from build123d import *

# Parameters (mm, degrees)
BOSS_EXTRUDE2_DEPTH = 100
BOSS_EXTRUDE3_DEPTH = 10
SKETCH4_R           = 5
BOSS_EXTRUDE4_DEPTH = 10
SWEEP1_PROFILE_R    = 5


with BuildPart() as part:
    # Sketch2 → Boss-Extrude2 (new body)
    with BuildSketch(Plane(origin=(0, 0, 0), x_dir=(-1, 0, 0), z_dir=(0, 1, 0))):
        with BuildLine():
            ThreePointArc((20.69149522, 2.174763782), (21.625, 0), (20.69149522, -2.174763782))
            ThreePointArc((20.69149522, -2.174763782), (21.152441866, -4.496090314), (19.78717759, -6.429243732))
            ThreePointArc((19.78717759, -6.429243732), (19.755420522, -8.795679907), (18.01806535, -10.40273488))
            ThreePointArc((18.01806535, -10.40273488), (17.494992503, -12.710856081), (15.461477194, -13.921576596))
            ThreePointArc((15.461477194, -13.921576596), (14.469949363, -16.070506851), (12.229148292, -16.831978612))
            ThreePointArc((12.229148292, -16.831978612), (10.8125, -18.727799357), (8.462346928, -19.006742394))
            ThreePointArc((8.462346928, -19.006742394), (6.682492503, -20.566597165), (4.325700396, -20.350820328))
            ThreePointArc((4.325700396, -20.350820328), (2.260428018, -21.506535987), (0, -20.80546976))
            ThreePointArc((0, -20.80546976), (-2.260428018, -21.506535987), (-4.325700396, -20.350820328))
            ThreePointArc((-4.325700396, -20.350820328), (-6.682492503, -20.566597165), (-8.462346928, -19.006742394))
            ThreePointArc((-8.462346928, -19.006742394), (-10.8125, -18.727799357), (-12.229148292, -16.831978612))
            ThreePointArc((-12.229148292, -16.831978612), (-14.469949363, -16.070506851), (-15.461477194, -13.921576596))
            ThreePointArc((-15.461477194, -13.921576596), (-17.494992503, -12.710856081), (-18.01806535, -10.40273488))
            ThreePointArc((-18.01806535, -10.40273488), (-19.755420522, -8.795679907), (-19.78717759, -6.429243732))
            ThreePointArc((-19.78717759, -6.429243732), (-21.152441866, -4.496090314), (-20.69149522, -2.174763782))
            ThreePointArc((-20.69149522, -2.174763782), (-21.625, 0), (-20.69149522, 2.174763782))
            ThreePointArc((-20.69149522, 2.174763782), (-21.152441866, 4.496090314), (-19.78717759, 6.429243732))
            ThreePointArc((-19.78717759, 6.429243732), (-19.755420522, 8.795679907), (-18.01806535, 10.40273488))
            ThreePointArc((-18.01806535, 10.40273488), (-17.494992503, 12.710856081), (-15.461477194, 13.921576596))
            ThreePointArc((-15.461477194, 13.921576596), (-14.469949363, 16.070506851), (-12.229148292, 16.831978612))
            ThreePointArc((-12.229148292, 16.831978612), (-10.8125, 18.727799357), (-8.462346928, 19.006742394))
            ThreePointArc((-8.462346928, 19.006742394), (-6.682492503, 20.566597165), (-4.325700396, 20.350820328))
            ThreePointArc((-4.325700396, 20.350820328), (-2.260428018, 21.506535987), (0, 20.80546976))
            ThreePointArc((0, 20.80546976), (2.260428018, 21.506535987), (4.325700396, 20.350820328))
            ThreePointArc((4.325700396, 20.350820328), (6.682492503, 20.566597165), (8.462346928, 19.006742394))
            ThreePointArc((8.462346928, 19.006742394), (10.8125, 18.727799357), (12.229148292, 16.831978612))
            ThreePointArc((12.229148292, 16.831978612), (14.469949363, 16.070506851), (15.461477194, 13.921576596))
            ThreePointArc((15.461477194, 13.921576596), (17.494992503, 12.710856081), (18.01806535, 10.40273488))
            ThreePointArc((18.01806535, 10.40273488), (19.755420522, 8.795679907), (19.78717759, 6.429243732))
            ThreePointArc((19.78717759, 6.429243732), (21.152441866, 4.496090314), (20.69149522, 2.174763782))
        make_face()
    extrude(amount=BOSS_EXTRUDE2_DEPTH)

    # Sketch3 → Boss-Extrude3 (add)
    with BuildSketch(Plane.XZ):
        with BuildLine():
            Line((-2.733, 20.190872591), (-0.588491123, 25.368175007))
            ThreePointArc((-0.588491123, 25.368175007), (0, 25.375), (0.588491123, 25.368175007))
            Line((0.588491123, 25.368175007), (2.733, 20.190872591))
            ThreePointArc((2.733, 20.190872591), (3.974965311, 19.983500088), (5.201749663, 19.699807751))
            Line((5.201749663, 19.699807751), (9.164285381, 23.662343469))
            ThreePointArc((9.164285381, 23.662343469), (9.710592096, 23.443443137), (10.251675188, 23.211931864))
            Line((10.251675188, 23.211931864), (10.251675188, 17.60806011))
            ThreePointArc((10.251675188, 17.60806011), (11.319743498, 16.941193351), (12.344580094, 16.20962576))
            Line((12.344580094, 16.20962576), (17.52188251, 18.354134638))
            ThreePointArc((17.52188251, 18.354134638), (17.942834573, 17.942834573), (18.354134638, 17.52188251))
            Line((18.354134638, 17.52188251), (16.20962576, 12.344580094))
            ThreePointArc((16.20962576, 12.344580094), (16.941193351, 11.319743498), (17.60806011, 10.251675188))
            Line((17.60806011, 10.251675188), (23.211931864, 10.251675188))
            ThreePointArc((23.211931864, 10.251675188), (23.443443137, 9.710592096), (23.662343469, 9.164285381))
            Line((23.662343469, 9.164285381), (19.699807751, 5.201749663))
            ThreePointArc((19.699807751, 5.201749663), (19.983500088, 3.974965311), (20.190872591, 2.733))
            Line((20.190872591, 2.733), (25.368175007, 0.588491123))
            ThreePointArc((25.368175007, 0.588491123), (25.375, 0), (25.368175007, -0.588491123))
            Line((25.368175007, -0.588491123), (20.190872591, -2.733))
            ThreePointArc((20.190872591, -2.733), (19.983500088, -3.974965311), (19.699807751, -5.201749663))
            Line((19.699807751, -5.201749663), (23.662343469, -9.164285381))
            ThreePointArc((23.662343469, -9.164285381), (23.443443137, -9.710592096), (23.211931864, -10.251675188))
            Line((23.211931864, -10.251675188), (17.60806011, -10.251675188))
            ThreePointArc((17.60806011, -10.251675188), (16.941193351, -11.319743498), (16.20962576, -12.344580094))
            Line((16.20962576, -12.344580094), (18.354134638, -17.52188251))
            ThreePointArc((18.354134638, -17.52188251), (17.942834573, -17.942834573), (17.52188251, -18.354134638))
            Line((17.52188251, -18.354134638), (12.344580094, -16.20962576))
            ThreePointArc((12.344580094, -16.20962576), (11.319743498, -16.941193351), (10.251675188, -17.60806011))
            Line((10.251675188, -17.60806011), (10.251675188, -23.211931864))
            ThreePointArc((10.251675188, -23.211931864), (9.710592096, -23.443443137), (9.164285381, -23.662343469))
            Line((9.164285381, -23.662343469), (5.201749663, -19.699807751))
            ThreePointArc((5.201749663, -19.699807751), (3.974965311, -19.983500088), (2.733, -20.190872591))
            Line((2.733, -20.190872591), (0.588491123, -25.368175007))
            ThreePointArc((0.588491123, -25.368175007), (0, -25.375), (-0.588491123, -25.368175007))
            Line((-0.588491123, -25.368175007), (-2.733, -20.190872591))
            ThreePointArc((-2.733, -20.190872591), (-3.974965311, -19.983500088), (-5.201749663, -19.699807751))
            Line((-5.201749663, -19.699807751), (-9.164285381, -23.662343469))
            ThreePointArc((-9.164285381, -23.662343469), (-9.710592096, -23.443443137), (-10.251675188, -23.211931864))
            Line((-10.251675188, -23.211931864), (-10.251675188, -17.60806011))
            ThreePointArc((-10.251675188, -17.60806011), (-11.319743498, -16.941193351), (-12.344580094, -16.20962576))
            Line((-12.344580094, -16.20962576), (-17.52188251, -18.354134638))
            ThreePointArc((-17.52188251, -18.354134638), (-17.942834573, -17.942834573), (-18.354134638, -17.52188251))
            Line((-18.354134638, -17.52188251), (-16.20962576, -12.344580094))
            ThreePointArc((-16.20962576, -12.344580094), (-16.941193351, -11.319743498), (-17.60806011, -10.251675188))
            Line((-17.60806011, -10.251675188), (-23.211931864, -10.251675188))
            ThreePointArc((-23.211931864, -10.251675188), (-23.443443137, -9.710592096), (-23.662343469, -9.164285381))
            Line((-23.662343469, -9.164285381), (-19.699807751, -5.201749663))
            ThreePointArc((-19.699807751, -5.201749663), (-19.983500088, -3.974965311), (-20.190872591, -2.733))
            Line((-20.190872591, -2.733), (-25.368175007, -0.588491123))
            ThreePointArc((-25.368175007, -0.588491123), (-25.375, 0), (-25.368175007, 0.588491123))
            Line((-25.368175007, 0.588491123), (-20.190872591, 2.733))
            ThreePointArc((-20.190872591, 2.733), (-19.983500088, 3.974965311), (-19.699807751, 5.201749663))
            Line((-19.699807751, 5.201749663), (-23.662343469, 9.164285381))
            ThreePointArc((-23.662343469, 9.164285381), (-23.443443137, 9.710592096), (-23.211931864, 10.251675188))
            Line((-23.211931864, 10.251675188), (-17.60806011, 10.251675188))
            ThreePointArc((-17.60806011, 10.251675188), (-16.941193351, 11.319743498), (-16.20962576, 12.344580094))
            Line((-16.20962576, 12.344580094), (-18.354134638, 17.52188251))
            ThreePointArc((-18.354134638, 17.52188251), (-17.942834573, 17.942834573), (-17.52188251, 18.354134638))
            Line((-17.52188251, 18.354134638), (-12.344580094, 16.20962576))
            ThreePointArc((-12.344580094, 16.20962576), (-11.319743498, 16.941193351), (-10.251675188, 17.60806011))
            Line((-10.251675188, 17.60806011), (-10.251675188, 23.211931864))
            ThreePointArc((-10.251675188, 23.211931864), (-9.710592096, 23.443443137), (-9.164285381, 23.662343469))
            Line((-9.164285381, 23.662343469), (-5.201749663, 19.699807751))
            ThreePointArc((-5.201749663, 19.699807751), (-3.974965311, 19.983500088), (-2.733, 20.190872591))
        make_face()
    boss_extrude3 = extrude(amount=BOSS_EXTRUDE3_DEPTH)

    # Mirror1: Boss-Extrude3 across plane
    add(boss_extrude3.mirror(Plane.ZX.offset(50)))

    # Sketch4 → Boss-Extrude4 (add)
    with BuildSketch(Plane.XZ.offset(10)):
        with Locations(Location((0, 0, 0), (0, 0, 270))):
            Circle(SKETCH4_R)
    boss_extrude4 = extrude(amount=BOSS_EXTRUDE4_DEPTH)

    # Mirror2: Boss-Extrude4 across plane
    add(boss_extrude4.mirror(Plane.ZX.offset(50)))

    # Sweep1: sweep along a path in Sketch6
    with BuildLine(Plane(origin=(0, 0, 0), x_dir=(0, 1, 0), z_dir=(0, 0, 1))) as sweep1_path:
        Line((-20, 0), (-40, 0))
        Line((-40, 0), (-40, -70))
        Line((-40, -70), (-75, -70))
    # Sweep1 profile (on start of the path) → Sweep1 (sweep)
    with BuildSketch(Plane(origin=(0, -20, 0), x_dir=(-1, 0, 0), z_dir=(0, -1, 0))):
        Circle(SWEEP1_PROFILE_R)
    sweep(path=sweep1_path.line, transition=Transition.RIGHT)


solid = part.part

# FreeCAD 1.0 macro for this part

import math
import FreeCAD as App
import Part
import Sketcher
from FreeCAD import Vector
Q = App.Units.Quantity

doc = App.newDocument("Part")
params = doc.addObject("Spreadsheet::Sheet", "Params")
for row, (alias, value) in enumerate([
    ("sketch1_radius", "3 mm"),
    ("pad1_length", "100 mm"),
    ("pad2_length", "10 mm"),
    ("sketch3_diameter", "10 mm"),
    ("pad3_length", "10 mm"),
    ("sketch4_diameter", "10 mm"),
    ("sketch5_width", "70 mm"),
    ("sketch5_height", "20 mm"),
    ("sketch5_height2", "35 mm"),
], start=1):
    params.set(f"A{row}", alias)
    params.set(f"B{row}", "=" + value)
    params.setAlias(f"B{row}", alias)

body = doc.addObject("PartDesign::Body", "Body")

# Sketch on XZ plane
sketch1 = body.newObject("Sketcher::SketchObject", "Sketch")
sketch1.AttachmentSupport = (doc.getObject("XZ_Plane"), [""])
sketch1.MapMode = "FlatFace"
sketch1.addGeometry(Part.ArcOfCircle(Part.Circle(Vector(-18.6, 0, 0), Vector(0, 0, 1), 3), math.radians(134), math.radians(226)), False)
sketch1.addGeometry(Part.ArcOfCircle(Part.Circle(Vector(-18.2, 3.9, 0), Vector(0, 0, 1), 3), math.radians(122), math.radians(214)), False)
sketch1.addGeometry(Part.ArcOfCircle(Part.Circle(Vector(-17, 7.6, 0), Vector(0, 0, 1), 3), math.radians(110), math.radians(202)), False)
sketch1.addGeometry(Part.ArcOfCircle(Part.Circle(Vector(-15.1, 10.9, 0), Vector(0, 0, 1), 3), math.radians(98), math.radians(190)), False)
sketch1.addGeometry(Part.ArcOfCircle(Part.Circle(Vector(-12.5, 13.8, 0), Vector(0, 0, 1), 3), math.radians(86), math.radians(178)), False)
sketch1.addGeometry(Part.ArcOfCircle(Part.Circle(Vector(-9.3, 16.1, 0), Vector(0, 0, 1), 3), math.radians(74), math.radians(166)), False)
sketch1.addGeometry(Part.ArcOfCircle(Part.Circle(Vector(-5.8, 17.7, 0), Vector(0, 0, 1), 3), math.radians(62), math.radians(154)), False)
sketch1.addGeometry(Part.ArcOfCircle(Part.Circle(Vector(-1.9, 18.5, 0), Vector(0, 0, 1), 3), math.radians(50), math.radians(142)), False)
sketch1.addGeometry(Part.ArcOfCircle(Part.Circle(Vector(1.9, 18.5, 0), Vector(0, 0, 1), 3), math.radians(38), math.radians(130)), False)
sketch1.addGeometry(Part.ArcOfCircle(Part.Circle(Vector(5.8, 17.7, 0), Vector(0, 0, 1), 3), math.radians(26), math.radians(118)), False)
sketch1.addGeometry(Part.ArcOfCircle(Part.Circle(Vector(9.3, 16.1, 0), Vector(0, 0, 1), 3), math.radians(14), math.radians(106)), False)
sketch1.addGeometry(Part.ArcOfCircle(Part.Circle(Vector(12.5, 13.8, 0), Vector(0, 0, 1), 3), math.radians(2), math.radians(94)), False)
sketch1.addGeometry(Part.ArcOfCircle(Part.Circle(Vector(15.1, 10.9, 0), Vector(0, 0, 1), 3), math.radians(-10), math.radians(82)), False)
sketch1.addGeometry(Part.ArcOfCircle(Part.Circle(Vector(17, 7.6, 0), Vector(0, 0, 1), 3), math.radians(-22), math.radians(70)), False)
sketch1.addGeometry(Part.ArcOfCircle(Part.Circle(Vector(18.2, 3.9, 0), Vector(0, 0, 1), 3), math.radians(-34), math.radians(58)), False)
sketch1.addGeometry(Part.ArcOfCircle(Part.Circle(Vector(18.6, 0, 0), Vector(0, 0, 1), 3), math.radians(-46), math.radians(46)), False)
sketch1.addGeometry(Part.ArcOfCircle(Part.Circle(Vector(18.2, -3.9, 0), Vector(0, 0, 1), 3), math.radians(-58), math.radians(34)), False)
sketch1.addGeometry(Part.ArcOfCircle(Part.Circle(Vector(17, -7.6, 0), Vector(0, 0, 1), 3), math.radians(-70), math.radians(22)), False)
sketch1.addGeometry(Part.ArcOfCircle(Part.Circle(Vector(15.1, -10.9, 0), Vector(0, 0, 1), 3), math.radians(-82), math.radians(10)), False)
sketch1.addGeometry(Part.ArcOfCircle(Part.Circle(Vector(12.5, -13.8, 0), Vector(0, 0, 1), 3), math.radians(-94), math.radians(-2)), False)
sketch1.addGeometry(Part.ArcOfCircle(Part.Circle(Vector(9.3, -16.1, 0), Vector(0, 0, 1), 3), math.radians(-106), math.radians(-14)), False)
sketch1.addGeometry(Part.ArcOfCircle(Part.Circle(Vector(5.8, -17.7, 0), Vector(0, 0, 1), 3), math.radians(-118), math.radians(-26)), False)
sketch1.addGeometry(Part.ArcOfCircle(Part.Circle(Vector(1.9, -18.5, 0), Vector(0, 0, 1), 3), math.radians(-130), math.radians(-38)), False)
sketch1.addGeometry(Part.ArcOfCircle(Part.Circle(Vector(-1.9, -18.5, 0), Vector(0, 0, 1), 3), math.radians(-142), math.radians(-50)), False)
sketch1.addGeometry(Part.ArcOfCircle(Part.Circle(Vector(-5.8, -17.7, 0), Vector(0, 0, 1), 3), math.radians(-154), math.radians(-62)), False)
sketch1.addGeometry(Part.ArcOfCircle(Part.Circle(Vector(-9.3, -16.1, 0), Vector(0, 0, 1), 3), math.radians(-166), math.radians(-74)), False)
sketch1.addGeometry(Part.ArcOfCircle(Part.Circle(Vector(-12.5, -13.8, 0), Vector(0, 0, 1), 3), math.radians(-178), math.radians(-86)), False)
sketch1.addGeometry(Part.ArcOfCircle(Part.Circle(Vector(-15.1, -10.9, 0), Vector(0, 0, 1), 3), math.radians(170), math.radians(262)), False)
sketch1.addGeometry(Part.ArcOfCircle(Part.Circle(Vector(-17, -7.6, 0), Vector(0, 0, 1), 3), math.radians(158), math.radians(250)), False)
sketch1.addGeometry(Part.ArcOfCircle(Part.Circle(Vector(-18.2, -3.9, 0), Vector(0, 0, 1), 3), math.radians(146), math.radians(238)), False)
sketch1.addConstraint(Sketcher.Constraint("Coincident", 0, 1, 1, 2))
sketch1.addConstraint(Sketcher.Constraint("Coincident", 1, 1, 2, 2))
sketch1.addConstraint(Sketcher.Constraint("Coincident", 2, 1, 3, 2))
sketch1.addConstraint(Sketcher.Constraint("Coincident", 3, 1, 4, 2))
sketch1.addConstraint(Sketcher.Constraint("Coincident", 4, 1, 5, 2))
sketch1.addConstraint(Sketcher.Constraint("Coincident", 5, 1, 6, 2))
sketch1.addConstraint(Sketcher.Constraint("Coincident", 6, 1, 7, 2))
sketch1.addConstraint(Sketcher.Constraint("Coincident", 7, 1, 8, 2))
sketch1.addConstraint(Sketcher.Constraint("Coincident", 8, 1, 9, 2))
sketch1.addConstraint(Sketcher.Constraint("Coincident", 9, 1, 10, 2))
sketch1.addConstraint(Sketcher.Constraint("Coincident", 10, 1, 11, 2))
sketch1.addConstraint(Sketcher.Constraint("Coincident", 11, 1, 12, 2))
sketch1.addConstraint(Sketcher.Constraint("Coincident", 12, 1, 13, 2))
sketch1.addConstraint(Sketcher.Constraint("Coincident", 13, 1, 14, 2))
sketch1.addConstraint(Sketcher.Constraint("Coincident", 14, 1, 15, 2))
sketch1.addConstraint(Sketcher.Constraint("Coincident", 15, 1, 16, 2))
sketch1.addConstraint(Sketcher.Constraint("Coincident", 16, 1, 17, 2))
sketch1.addConstraint(Sketcher.Constraint("Coincident", 17, 1, 18, 2))
sketch1.addConstraint(Sketcher.Constraint("Coincident", 18, 1, 19, 2))
sketch1.addConstraint(Sketcher.Constraint("Coincident", 19, 1, 20, 2))
sketch1.addConstraint(Sketcher.Constraint("Coincident", 20, 1, 21, 2))
sketch1.addConstraint(Sketcher.Constraint("Coincident", 21, 1, 22, 2))
sketch1.addConstraint(Sketcher.Constraint("Coincident", 22, 1, 23, 2))
sketch1.addConstraint(Sketcher.Constraint("Coincident", 23, 1, 24, 2))
sketch1.addConstraint(Sketcher.Constraint("Coincident", 24, 1, 25, 2))
sketch1.addConstraint(Sketcher.Constraint("Coincident", 25, 1, 26, 2))
sketch1.addConstraint(Sketcher.Constraint("Coincident", 26, 1, 27, 2))
sketch1.addConstraint(Sketcher.Constraint("Coincident", 27, 1, 28, 2))
sketch1.addConstraint(Sketcher.Constraint("Coincident", 28, 1, 29, 2))
sketch1.addConstraint(Sketcher.Constraint("Coincident", 29, 1, 0, 2))
sketch1.addConstraint(Sketcher.Constraint("Equal", 0, 1))
sketch1.addConstraint(Sketcher.Constraint("Equal", 1, 2))
sketch1.addConstraint(Sketcher.Constraint("Equal", 2, 3))
sketch1.addConstraint(Sketcher.Constraint("Equal", 3, 4))
sketch1.addConstraint(Sketcher.Constraint("Equal", 4, 5))
sketch1.addConstraint(Sketcher.Constraint("Equal", 5, 6))
sketch1.addConstraint(Sketcher.Constraint("Equal", 6, 7))
sketch1.addConstraint(Sketcher.Constraint("Equal", 7, 8))
sketch1.addConstraint(Sketcher.Constraint("Equal", 8, 9))
sketch1.addConstraint(Sketcher.Constraint("Equal", 9, 10))
sketch1.addConstraint(Sketcher.Constraint("Equal", 10, 11))
sketch1.addConstraint(Sketcher.Constraint("Equal", 11, 12))
sketch1.addConstraint(Sketcher.Constraint("Equal", 12, 13))
sketch1.addConstraint(Sketcher.Constraint("Equal", 13, 14))
sketch1.addConstraint(Sketcher.Constraint("Equal", 14, 15))
sketch1.addConstraint(Sketcher.Constraint("Equal", 15, 16))
sketch1.addConstraint(Sketcher.Constraint("Equal", 16, 17))
sketch1.addConstraint(Sketcher.Constraint("Equal", 17, 18))
sketch1.addConstraint(Sketcher.Constraint("Equal", 18, 19))
sketch1.addConstraint(Sketcher.Constraint("Equal", 19, 20))
sketch1.addConstraint(Sketcher.Constraint("Equal", 20, 21))
sketch1.addConstraint(Sketcher.Constraint("Equal", 21, 22))
sketch1.addConstraint(Sketcher.Constraint("Equal", 22, 23))
sketch1.addConstraint(Sketcher.Constraint("Equal", 23, 24))
sketch1.addConstraint(Sketcher.Constraint("Equal", 24, 25))
sketch1.addConstraint(Sketcher.Constraint("Equal", 25, 26))
sketch1.addConstraint(Sketcher.Constraint("Equal", 26, 27))
sketch1.addConstraint(Sketcher.Constraint("Equal", 27, 28))
sketch1.addConstraint(Sketcher.Constraint("Equal", 28, 29))
sketch1.addConstraint(Sketcher.Constraint("Symmetric", 0, 3, 15, 3, -1, 1))
sketch1.addConstraint(Sketcher.Constraint("Symmetric", 1, 3, 16, 3, -1, 1))
sketch1.addConstraint(Sketcher.Constraint("Symmetric", 2, 3, 17, 3, -1, 1))
sketch1.addConstraint(Sketcher.Constraint("Symmetric", 3, 3, 18, 3, -1, 1))
sketch1.addConstraint(Sketcher.Constraint("Symmetric", 4, 3, 19, 3, -1, 1))
sketch1.addConstraint(Sketcher.Constraint("Symmetric", 5, 3, 20, 3, -1, 1))
sketch1.addConstraint(Sketcher.Constraint("Symmetric", 6, 3, 21, 3, -1, 1))
sketch1.addConstraint(Sketcher.Constraint("Symmetric", 7, 3, 22, 3, -1, 1))
sketch1.addConstraint(Sketcher.Constraint("Symmetric", 8, 3, 23, 3, -1, 1))
sketch1.addConstraint(Sketcher.Constraint("Symmetric", 9, 3, 24, 3, -1, 1))
sketch1.addConstraint(Sketcher.Constraint("Symmetric", 10, 3, 25, 3, -1, 1))
sketch1.addConstraint(Sketcher.Constraint("Symmetric", 11, 3, 26, 3, -1, 1))
sketch1.addConstraint(Sketcher.Constraint("Symmetric", 12, 3, 27, 3, -1, 1))
sketch1.addConstraint(Sketcher.Constraint("Symmetric", 13, 3, 28, 3, -1, 1))
sketch1.addConstraint(Sketcher.Constraint("Symmetric", 14, 3, 29, 3, -1, 1))
sketch1.addConstraint(Sketcher.Constraint("Symmetric", 7, 3, 8, 3, -2))
sketch1.addConstraint(Sketcher.Constraint("Symmetric", 6, 3, 9, 3, -2))
sketch1.addConstraint(Sketcher.Constraint("Symmetric", 5, 3, 10, 3, -2))
sketch1.addConstraint(Sketcher.Constraint("Symmetric", 4, 3, 11, 3, -2))
sketch1.addConstraint(Sketcher.Constraint("Symmetric", 3, 3, 12, 3, -2))
sketch1.addConstraint(Sketcher.Constraint("Symmetric", 2, 3, 13, 3, -2))
sketch1.addConstraint(Sketcher.Constraint("Symmetric", 1, 3, 14, 3, -2))
sketch1.addConstraint(Sketcher.Constraint("PointOnObject", 0, 3, -1))
sketch1.addConstraint(Sketcher.Constraint("Radius", 0, Q("3 mm")))
sketch1.addConstraint(Sketcher.Constraint("DistanceX", 0, 3, -1, 1, Q("18.625 mm")))
sketch1.addConstraint(Sketcher.Constraint("DistanceX", 1, 3, -1, 1, Q("18.217999 mm")))
sketch1.addConstraint(Sketcher.Constraint("DistanceX", 4, 3, 9, 3, Q("18.217999 mm")))
sketch1.addConstraint(Sketcher.Constraint("DistanceX", 5, 3, 10, 3, Q("18.625 mm")))
sketch1.addConstraint(Sketcher.Constraint("DistanceY", -1, 1, 3, 3, Q("10.9475 mm")))
sketch1.addConstraint(Sketcher.Constraint("DistanceX", 6, 1, -1, 1, Q("4.3257 mm")))
sketch1.addConstraint(Sketcher.Constraint("DistanceX", 3, 3, 6, 3, Q("9.3125 mm")))
sketch1.addConstraint(Sketcher.Constraint("DistanceX", 6, 3, 7, 3, Q("3.808599 mm")))
sketch1.addConstraint(Sketcher.Constraint("DistanceY", 2, 3, 7, 3, Q("10.9475 mm")))
sketch1.addConstraint(Sketcher.Constraint("DistanceX", 4, 1, 5, 1, Q("3.766801 mm")))
sketch1.addConstraint(Sketcher.Constraint("DistanceY", 8, 3, 7, 1, Q("2.282499 mm")))
sketch1.addConstraint(Sketcher.Constraint("DistanceY", -1, 1, 2, 3, Q("7.57547 mm")))
sketch1.addConstraint(Sketcher.Constraint("DistanceX", 4, 1, -1, 1, Q("12.229148 mm")))
sketch1.addConstraint(Sketcher.Constraint("DistanceX", 2, 3, 7, 3, Q("15.067942 mm")))
sketch1.addConstraint(Sketcher.Constraint("DistanceY", 16, 3, 14, 3, Q("7.74471 mm")))
sketch1.setExpression("Constraints[82]", "Params.sketch1_radius")
pad1 = body.newObject("PartDesign::Pad", "Pad")
pad1.Profile = sketch1
pad1.setExpression("Length", "Params.pad1_length")
pad1.Reversed = True

# Sketch on XZ plane
sketch2 = body.newObject("Sketcher::SketchObject", "Sketch001")
sketch2.AttachmentSupport = (doc.getObject("XZ_Plane"), [""])
sketch2.MapMode = "FlatFace"
sketch2.addGeometry(Part.LineSegment(Vector(-0.588491, 25.368175, 0), Vector(-2.733, 20.190873, 0)), False)
sketch2.addGeometry(Part.ArcOfCircle(Part.Circle(Vector(0, 0, 0), Vector(0, 0, 1), 20.375), math.radians(97.708602), math.radians(104.791398)), False)
sketch2.addGeometry(Part.LineSegment(Vector(-5.20175, 19.699808, 0), Vector(-9.164285, 23.662343, 0)), False)
sketch2.addGeometry(Part.ArcOfCircle(Part.Circle(Vector(0.000001, -0.000002, 0), Vector(0, 0, 1), 25.375002), math.radians(111.17109), math.radians(113.828909)), False)
sketch2.addGeometry(Part.LineSegment(Vector(-10.251675, 23.211932, 0), Vector(-10.251675, 17.60806, 0)), False)
sketch2.addGeometry(Part.ArcOfCircle(Part.Circle(Vector(0, 0, 0), Vector(0, 0, 1), 20.375), math.radians(120.208602), math.radians(127.291398)), False)
sketch2.addGeometry(Part.LineSegment(Vector(-12.34458, 16.209626, 0), Vector(-17.521883, 18.354135, 0)), False)
sketch2.addGeometry(Part.ArcOfCircle(Part.Circle(Vector(-0.000001, 0.000001, 0), Vector(0, 0, 1), 25.374998), math.radians(133.67109), math.radians(136.32891)), False)
sketch2.addGeometry(Part.LineSegment(Vector(-18.354135, 17.521883, 0), Vector(-16.209626, 12.34458, 0)), False)
sketch2.addGeometry(Part.ArcOfCircle(Part.Circle(Vector(0, 0, 0), Vector(0, 0, 1), 20.375), math.radians(142.708602), math.radians(149.791398)), False)
sketch2.addGeometry(Part.LineSegment(Vector(-17.60806, 10.251675, 0), Vector(-23.211932, 10.251675, 0)), False)
sketch2.addGeometry(Part.ArcOfCircle(Part.Circle(Vector(0.000002, -0.000001, 0), Vector(0, 0, 1), 25.375002), math.radians(156.171091), math.radians(158.82891)), False)
sketch2.addGeometry(Part.LineSegment(Vector(-23.662343, 9.164285, 0), Vector(-19.699808, 5.20175, 0)), False)
sketch2.addGeometry(Part.ArcOfCircle(Part.Circle(Vector(0, 0, 0), Vector(0, 0, 1), 20.375), math.radians(165.208602), math.radians(172.291398)), False)
sketch2.addGeometry(Part.LineSegment(Vector(-20.190873, 2.733, 0), Vector(-25.368175, 0.588491, 0)), False)
sketch2.addGeometry(Part.ArcOfCircle(Part.Circle(Vector(-0.000001, 0, 0), Vector(0, 0, 1), 25.374999), math.radians(178.67109), math.radians(181.32891)), False)
sketch2.addGeometry(Part.LineSegment(Vector(-25.368175, -0.588491, 0), Vector(-20.190873, -2.733, 0)), False)
sketch2.addGeometry(Part.ArcOfCircle(Part.Circle(Vector(0, 0, 0), Vector(0, 0, 1), 20.375), math.radians(-172.291398), math.radians(-165.208602)), False)
sketch2.addGeometry(Part.LineSegment(Vector(-19.699808, -5.20175, 0), Vector(-23.662343, -9.164285, 0)), False)
sketch2.addGeometry(Part.ArcOfCircle(Part.Circle(Vector(0.000002, 0.000001, 0), Vector(0, 0, 1), 25.375002), math.radians(-158.82891), math.radians(-156.171091)), False)
sketch2.addGeometry(Part.LineSegment(Vector(-23.211932, -10.251675, 0), Vector(-17.60806, -10.251675, 0)), False)
sketch2.addGeometry(Part.ArcOfCircle(Part.Circle(Vector(0, 0, 0), Vector(0, 0, 1), 20.375), math.radians(-149.791398), math.radians(-142.708602)), False)
sketch2.addGeometry(Part.LineSegment(Vector(-16.209626, -12.34458, 0), Vector(-18.354135, -17.521883, 0)), False)
sketch2.addGeometry(Part.ArcOfCircle(Part.Circle(Vector(-0.000001, -0.000001, 0), Vector(0, 0, 1), 25.374998), math.radians(-136.32891), math.radians(-133.67109)), False)
sketch2.addGeometry(Part.LineSegment(Vector(-17.521883, -18.354135, 0), Vector(-12.34458, -16.209626, 0)), False)
sketch2.addGeometry(Part.ArcOfCircle(Part.Circle(Vector(0, 0, 0), Vector(0, 0, 1), 20.375), math.radians(-127.291398), math.radians(-120.208602)), False)
sketch2.addGeometry(Part.LineSegment(Vector(-10.251675, -17.60806, 0), Vector(-10.251675, -23.211932, 0)), False)
sketch2.addGeometry(Part.ArcOfCircle(Part.Circle(Vector(0.000001, 0.000002, 0), Vector(0, 0, 1), 25.375002), math.radians(-113.828909), math.radians(-111.17109)), False)
sketch2.addGeometry(Part.LineSegment(Vector(-9.164285, -23.662343, 0), Vector(-5.20175, -19.699808, 0)), False)
sketch2.addGeometry(Part.ArcOfCircle(Part.Circle(Vector(0, 0, 0), Vector(0, 0, 1), 20.375), math.radians(-104.791398), math.radians(-97.708602)), False)
sketch2.addGeometry(Part.LineSegment(Vector(-2.733, -20.190873, 0), Vector(-0.588491, -25.368175, 0)), False)
sketch2.addGeometry(Part.ArcOfCircle(Part.Circle(Vector(0, -0.000001, 0), Vector(0, 0, 1), 25.374999), math.radians(-91.32891), math.radians(-88.67109)), False)
sketch2.addGeometry(Part.LineSegment(Vector(0.588491, -25.368175, 0), Vector(2.733, -20.190873, 0)), False)
sketch2.addGeometry(Part.ArcOfCircle(Part.Circle(Vector(0, 0, 0), Vector(0, 0, 1), 20.375), math.radians(-82.291398), math.radians(-75.208602)), False)
sketch2.addGeometry(Part.LineSegment(Vector(5.20175, -19.699808, 0), Vector(9.164285, -23.662343, 0)), False)
sketch2.addGeometry(Part.ArcOfCircle(Part.Circle(Vector(-0.000001, 0.000002, 0), Vector(0, 0, 1), 25.375002), math.radians(-68.82891), math.radians(-66.171091)), False)
sketch2.addGeometry(Part.LineSegment(Vector(10.251675, -23.211932, 0), Vector(10.251675, -17.60806, 0)), False)
sketch2.addGeometry(Part.ArcOfCircle(Part.Circle(Vector(0, 0, 0), Vector(0, 0, 1), 20.375), math.radians(-59.791398), math.radians(-52.708602)), False)
sketch2.addGeometry(Part.LineSegment(Vector(12.34458, -16.209626, 0), Vector(17.521883, -18.354135, 0)), False)
sketch2.addGeometry(Part.ArcOfCircle(Part.Circle(Vector(0.000001, -0.000001, 0), Vector(0, 0, 1), 25.374998), math.radians(-46.32891), math.radians(-43.67109)), False)
sketch2.addGeometry(Part.LineSegment(Vector(18.354135, -17.521883, 0), Vector(16.209626, -12.34458, 0)), False)
sketch2.addGeometry(Part.ArcOfCircle(Part.Circle(Vector(0, 0, 0), Vector(0, 0, 1), 20.375), math.radians(-37.291398), math.radians(-30.208602)), False)
sketch2.addGeometry(Part.LineSegment(Vector(17.60806, -10.251675, 0), Vector(23.211932, -10.251675, 0)), False)
sketch2.addGeometry(Part.ArcOfCircle(Part.Circle(Vector(-0.000002, 0.000001, 0), Vector(0, 0, 1), 25.375002), math.radians(-23.828909), math.radians(-21.17109)), False)
sketch2.addGeometry(Part.LineSegment(Vector(23.662343, -9.164285, 0), Vector(19.699808, -5.20175, 0)), False)
sketch2.addGeometry(Part.ArcOfCircle(Part.Circle(Vector(0, 0, 0), Vector(0, 0, 1), 20.375), math.radians(-14.791398), math.radians(-7.708602)), False)
sketch2.addGeometry(Part.LineSegment(Vector(20.190873, -2.733, 0), Vector(25.368175, -0.588491, 0)), False)
sketch2.addGeometry(Part.ArcOfCircle(Part.Circle(Vector(0.000001, 0, 0), Vector(0, 0, 1), 25.374999), math.radians(-1.32891), math.radians(1.32891)), False)
sketch2.addGeometry(Part.LineSegment(Vector(25.368175, 0.588491, 0), Vector(20.190873, 2.733, 0)), False)
sketch2.addGeometry(Part.ArcOfCircle(Part.Circle(Vector(0, 0, 0), Vector(0, 0, 1), 20.375), math.radians(7.708602), math.radians(14.791398)), False)
sketch2.addGeometry(Part.LineSegment(Vector(19.699808, 5.20175, 0), Vector(23.662343, 9.164285, 0)), False)
sketch2.addGeometry(Part.ArcOfCircle(Part.Circle(Vector(-0.000002, -0.000001, 0), Vector(0, 0, 1), 25.375002), math.radians(21.17109), math.radians(23.828909)), False)
sketch2.addGeometry(Part.LineSegment(Vector(23.211932, 10.251675, 0), Vector(17.60806, 10.251675, 0)), False)
sketch2.addGeometry(Part.ArcOfCircle(Part.Circle(Vector(0, 0, 0), Vector(0, 0, 1), 20.375), math.radians(30.208602), math.radians(37.291398)), False)
sketch2.addGeometry(Part.LineSegment(Vector(16.209626, 12.34458, 0), Vector(18.354135, 17.521883, 0)), False)
sketch2.addGeometry(Part.ArcOfCircle(Part.Circle(Vector(0.000001, 0.000001, 0), Vector(0, 0, 1), 25.374998), math.radians(43.67109), math.radians(46.32891)), False)
sketch2.addGeometry(Part.LineSegment(Vector(17.521883, 18.354135, 0), Vector(12.34458, 16.209626, 0)), False)
sketch2.addGeometry(Part.ArcOfCircle(Part.Circle(Vector(0, 0, 0), Vector(0, 0, 1), 20.375), math.radians(52.708602), math.radians(59.791398)), False)
sketch2.addGeometry(Part.LineSegment(Vector(10.251675, 17.60806, 0), Vector(10.251675, 23.211932, 0)), False)
sketch2.addGeometry(Part.ArcOfCircle(Part.Circle(Vector(-0.000001, -0.000002, 0), Vector(0, 0, 1), 25.375002), math.radians(66.171091), math.radians(68.82891)), False)
sketch2.addGeometry(Part.LineSegment(Vector(9.164285, 23.662343, 0), Vector(5.20175, 19.699808, 0)), False)
sketch2.addGeometry(Part.ArcOfCircle(Part.Circle(Vector(0, 0, 0), Vector(0, 0, 1), 20.375), math.radians(75.208602), math.radians(82.291398)), False)
sketch2.addGeometry(Part.LineSegment(Vector(2.733, 20.190873, 0), Vector(0.588491, 25.368175, 0)), False)
sketch2.addGeometry(Part.ArcOfCircle(Part.Circle(Vector(0, 0.000001, 0), Vector(0, 0, 1), 25.374999), math.radians(88.67109), math.radians(91.32891)), False)
sketch2.addConstraint(Sketcher.Constraint("Coincident", 0, 2, 1, 1))
sketch2.addConstraint(Sketcher.Constraint("Coincident", 1, 2, 2, 1))
sketch2.addConstraint(Sketcher.Constraint("Coincident", 2, 2, 3, 1))
sketch2.addConstraint(Sketcher.Constraint("Coincident", 3, 2, 4, 1))
sketch2.addConstraint(Sketcher.Constraint("Coincident", 4, 2, 5, 1))
sketch2.addConstraint(Sketcher.Constraint("Coincident", 5, 2, 6, 1))
sketch2.addConstraint(Sketcher.Constraint("Coincident", 6, 2, 7, 1))
sketch2.addConstraint(Sketcher.Constraint("Coincident", 7, 2, 8, 1))
sketch2.addConstraint(Sketcher.Constraint("Coincident", 8, 2, 9, 1))
sketch2.addConstraint(Sketcher.Constraint("Coincident", 9, 2, 10, 1))
sketch2.addConstraint(Sketcher.Constraint("Coincident", 10, 2, 11, 1))
sketch2.addConstraint(Sketcher.Constraint("Coincident", 11, 2, 12, 1))
sketch2.addConstraint(Sketcher.Constraint("Coincident", 12, 2, 13, 1))
sketch2.addConstraint(Sketcher.Constraint("Coincident", 13, 2, 14, 1))
sketch2.addConstraint(Sketcher.Constraint("Coincident", 14, 2, 15, 1))
sketch2.addConstraint(Sketcher.Constraint("Coincident", 15, 2, 16, 1))
sketch2.addConstraint(Sketcher.Constraint("Coincident", 16, 2, 17, 1))
sketch2.addConstraint(Sketcher.Constraint("Coincident", 17, 2, 18, 1))
sketch2.addConstraint(Sketcher.Constraint("Coincident", 18, 2, 19, 1))
sketch2.addConstraint(Sketcher.Constraint("Coincident", 19, 2, 20, 1))
sketch2.addConstraint(Sketcher.Constraint("Coincident", 20, 2, 21, 1))
sketch2.addConstraint(Sketcher.Constraint("Coincident", 21, 2, 22, 1))
sketch2.addConstraint(Sketcher.Constraint("Coincident", 22, 2, 23, 1))
sketch2.addConstraint(Sketcher.Constraint("Coincident", 23, 2, 24, 1))
sketch2.addConstraint(Sketcher.Constraint("Coincident", 24, 2, 25, 1))
sketch2.addConstraint(Sketcher.Constraint("Coincident", 25, 2, 26, 1))
sketch2.addConstraint(Sketcher.Constraint("Coincident", 26, 2, 27, 1))
sketch2.addConstraint(Sketcher.Constraint("Coincident", 27, 2, 28, 1))
sketch2.addConstraint(Sketcher.Constraint("Coincident", 28, 2, 29, 1))
sketch2.addConstraint(Sketcher.Constraint("Coincident", 29, 2, 30, 1))
sketch2.addConstraint(Sketcher.Constraint("Coincident", 30, 2, 31, 1))
sketch2.addConstraint(Sketcher.Constraint("Coincident", 31, 2, 32, 1))
sketch2.addConstraint(Sketcher.Constraint("Coincident", 32, 2, 33, 1))
sketch2.addConstraint(Sketcher.Constraint("Coincident", 33, 2, 34, 1))
sketch2.addConstraint(Sketcher.Constraint("Coincident", 34, 2, 35, 1))
sketch2.addConstraint(Sketcher.Constraint("Coincident", 35, 2, 36, 1))
sketch2.addConstraint(Sketcher.Constraint("Coincident", 36, 2, 37, 1))
sketch2.addConstraint(Sketcher.Constraint("Coincident", 37, 2, 38, 1))
sketch2.addConstraint(Sketcher.Constraint("Coincident", 38, 2, 39, 1))
sketch2.addConstraint(Sketcher.Constraint("Coincident", 39, 2, 40, 1))
sketch2.addConstraint(Sketcher.Constraint("Coincident", 40, 2, 41, 1))
sketch2.addConstraint(Sketcher.Constraint("Coincident", 41, 2, 42, 1))
sketch2.addConstraint(Sketcher.Constraint("Coincident", 42, 2, 43, 1))
sketch2.addConstraint(Sketcher.Constraint("Coincident", 43, 2, 44, 1))
sketch2.addConstraint(Sketcher.Constraint("Coincident", 44, 2, 45, 1))
sketch2.addConstraint(Sketcher.Constraint("Coincident", 45, 2, 46, 1))
sketch2.addConstraint(Sketcher.Constraint("Coincident", 46, 2, 47, 1))
sketch2.addConstraint(Sketcher.Constraint("Coincident", 47, 2, 48, 1))
sketch2.addConstraint(Sketcher.Constraint("Coincident", 48, 2, 49, 1))
sketch2.addConstraint(Sketcher.Constraint("Coincident", 49, 2, 50, 1))
sketch2.addConstraint(Sketcher.Constraint("Coincident", 50, 2, 51, 1))
sketch2.addConstraint(Sketcher.Constraint("Coincident", 51, 2, 52, 1))
sketch2.addConstraint(Sketcher.Constraint("Coincident", 52, 2, 53, 1))
sketch2.addConstraint(Sketcher.Constraint("Coincident", 53, 2, 54, 1))
sketch2.addConstraint(Sketcher.Constraint("Coincident", 54, 2, 55, 1))
sketch2.addConstraint(Sketcher.Constraint("Coincident", 55, 2, 56, 1))
sketch2.addConstraint(Sketcher.Constraint("Coincident", 56, 2, 57, 1))
sketch2.addConstraint(Sketcher.Constraint("Coincident", 57, 2, 58, 1))
sketch2.addConstraint(Sketcher.Constraint("Coincident", 58, 2, 59, 1))
sketch2.addConstraint(Sketcher.Constraint("Coincident", 59, 2, 60, 1))
sketch2.addConstraint(Sketcher.Constraint("Coincident", 60, 2, 61, 1))
sketch2.addConstraint(Sketcher.Constraint("Coincident", 61, 2, 62, 1))
sketch2.addConstraint(Sketcher.Constraint("Coincident", 62, 2, 63, 1))
sketch2.addConstraint(Sketcher.Constraint("Coincident", 63, 2, 0, 1))
sketch2.addConstraint(Sketcher.Constraint("Vertical", 4))
sketch2.addConstraint(Sketcher.Constraint("Horizontal", 10))
sketch2.addConstraint(Sketcher.Constraint("Horizontal", 20))
sketch2.addConstraint(Sketcher.Constraint("Vertical", 26))
sketch2.addConstraint(Sketcher.Constraint("Vertical", 36))
sketch2.addConstraint(Sketcher.Constraint("Horizontal", 42))
sketch2.addConstraint(Sketcher.Constraint("Horizontal", 52))
sketch2.addConstraint(Sketcher.Constraint("Vertical", 58))
sketch2.addConstraint(Sketcher.Constraint("Coincident", 1, 3, -1, 1))
sketch2.addConstraint(Sketcher.Constraint("Coincident", 3, 3, -1, 1))
sketch2.addConstraint(Sketcher.Constraint("Coincident", 5, 3, -1, 1))
sketch2.addConstraint(Sketcher.Constraint("Coincident", 7, 3, -1, 1))
sketch2.addConstraint(Sketcher.Constraint("Coincident", 9, 3, -1, 1))
sketch2.addConstraint(Sketcher.Constraint("Coincident", 11, 3, -1, 1))
sketch2.addConstraint(Sketcher.Constraint("Coincident", 13, 3, -1, 1))
sketch2.addConstraint(Sketcher.Constraint("Coincident", 15, 3, -1, 1))
sketch2.addConstraint(Sketcher.Constraint("Coincident", 17, 3, -1, 1))
sketch2.addConstraint(Sketcher.Constraint("Coincident", 19, 3, -1, 1))
sketch2.addConstraint(Sketcher.Constraint("Coincident", 21, 3, -1, 1))
sketch2.addConstraint(Sketcher.Constraint("Coincident", 23, 3, -1, 1))
sketch2.addConstraint(Sketcher.Constraint("Coincident", 25, 3, -1, 1))
sketch2.addConstraint(Sketcher.Constraint("Coincident", 27, 3, -1, 1))
sketch2.addConstraint(Sketcher.Constraint("Coincident", 29, 3, -1, 1))
sketch2.addConstraint(Sketcher.Constraint("Coincident", 31, 3, -1, 1))
sketch2.addConstraint(Sketcher.Constraint("Coincident", 33, 3, -1, 1))
sketch2.addConstraint(Sketcher.Constraint("Coincident", 35, 3, -1, 1))
sketch2.addConstraint(Sketcher.Constraint("Coincident", 37, 3, -1, 1))
sketch2.addConstraint(Sketcher.Constraint("Coincident", 39, 3, -1, 1))
sketch2.addConstraint(Sketcher.Constraint("Coincident", 41, 3, -1, 1))
sketch2.addConstraint(Sketcher.Constraint("Coincident", 43, 3, -1, 1))
sketch2.addConstraint(Sketcher.Constraint("Coincident", 45, 3, -1, 1))
sketch2.addConstraint(Sketcher.Constraint("Coincident", 47, 3, -1, 1))
sketch2.addConstraint(Sketcher.Constraint("Coincident", 49, 3, -1, 1))
sketch2.addConstraint(Sketcher.Constraint("Coincident", 51, 3, -1, 1))
sketch2.addConstraint(Sketcher.Constraint("Coincident", 53, 3, -1, 1))
sketch2.addConstraint(Sketcher.Constraint("Coincident", 55, 3, -1, 1))
sketch2.addConstraint(Sketcher.Constraint("Coincident", 57, 3, -1, 1))
sketch2.addConstraint(Sketcher.Constraint("Coincident", 59, 3, -1, 1))
sketch2.addConstraint(Sketcher.Constraint("Coincident", 61, 3, -1, 1))
sketch2.addConstraint(Sketcher.Constraint("Coincident", 63, 3, -1, 1))
sketch2.addConstraint(Sketcher.Constraint("Radius", 1, Q("20.375 mm")))
sketch2.addConstraint(Sketcher.Constraint("Radius", 5, Q("20.375 mm")))
sketch2.addConstraint(Sketcher.Constraint("Radius", 7, Q("25.374998 mm")))
sketch2.addConstraint(Sketcher.Constraint("Radius", 9, Q("20.375 mm")))
sketch2.addConstraint(Sketcher.Constraint("Radius", 13, Q("20.375 mm")))
sketch2.addConstraint(Sketcher.Constraint("Radius", 15, Q("25.374999 mm")))
sketch2.addConstraint(Sketcher.Constraint("Radius", 17, Q("20.375 mm")))
sketch2.addConstraint(Sketcher.Constraint("Radius", 21, Q("20.375 mm")))
sketch2.addConstraint(Sketcher.Constraint("Radius", 23, Q("25.374998 mm")))
sketch2.addConstraint(Sketcher.Constraint("Radius", 25, Q("20.375 mm")))
sketch2.addConstraint(Sketcher.Constraint("Radius", 29, Q("20.375 mm")))
sketch2.addConstraint(Sketcher.Constraint("Radius", 31, Q("25.374999 mm")))
sketch2.addConstraint(Sketcher.Constraint("Radius", 33, Q("20.375 mm")))
sketch2.addConstraint(Sketcher.Constraint("Radius", 37, Q("20.375 mm")))
sketch2.addConstraint(Sketcher.Constraint("Radius", 39, Q("25.374998 mm")))
sketch2.addConstraint(Sketcher.Constraint("Radius", 41, Q("20.375 mm")))
sketch2.addConstraint(Sketcher.Constraint("Radius", 45, Q("20.375 mm")))
sketch2.addConstraint(Sketcher.Constraint("Radius", 47, Q("25.374999 mm")))
sketch2.addConstraint(Sketcher.Constraint("Radius", 49, Q("20.375 mm")))
sketch2.addConstraint(Sketcher.Constraint("Radius", 53, Q("20.375 mm")))
sketch2.addConstraint(Sketcher.Constraint("Radius", 55, Q("25.374998 mm")))
sketch2.addConstraint(Sketcher.Constraint("Radius", 57, Q("20.375 mm")))
sketch2.addConstraint(Sketcher.Constraint("Radius", 61, Q("20.375 mm")))
sketch2.addConstraint(Sketcher.Constraint("Radius", 63, Q("25.374999 mm")))
sketch2.addConstraint(Sketcher.Constraint("DistanceX", 0, 2, -1, 1, Q("2.733 mm")))
sketch2.addConstraint(Sketcher.Constraint("DistanceY", -1, 1, 13, 2, Q("2.733 mm")))
sketch2.addConstraint(Sketcher.Constraint("DistanceY", 16, 2, -1, 1, Q("2.733 mm")))
sketch2.addConstraint(Sketcher.Constraint("DistanceX", 29, 2, -1, 1, Q("2.733 mm")))
sketch2.addConstraint(Sketcher.Constraint("DistanceX", -1, 1, 32, 2, Q("2.733 mm")))
sketch2.addConstraint(Sketcher.Constraint("DistanceY", 45, 2, -1, 1, Q("2.733 mm")))
sketch2.addConstraint(Sketcher.Constraint("DistanceY", -1, 1, 48, 2, Q("2.733 mm")))
sketch2.addConstraint(Sketcher.Constraint("DistanceX", -1, 1, 61, 2, Q("2.733 mm")))
sketch2.addConstraint(Sketcher.Constraint("Radius", 3, Q("25.375002 mm")))
sketch2.addConstraint(Sketcher.Constraint("Radius", 11, Q("25.375002 mm")))
sketch2.addConstraint(Sketcher.Constraint("Radius", 19, Q("25.375002 mm")))
sketch2.addConstraint(Sketcher.Constraint("Radius", 27, Q("25.375002 mm")))
sketch2.addConstraint(Sketcher.Constraint("Radius", 35, Q("25.375002 mm")))
sketch2.addConstraint(Sketcher.Constraint("Radius", 43, Q("25.375002 mm")))
sketch2.addConstraint(Sketcher.Constraint("Radius", 51, Q("25.375002 mm")))
sketch2.addConstraint(Sketcher.Constraint("Radius", 59, Q("25.375002 mm")))
sketch2.addConstraint(Sketcher.Constraint("DistanceX", 10, 2, 10, 1, Q("5.603872 mm")))
sketch2.addConstraint(Sketcher.Constraint("DistanceX", 20, 1, 20, 2, Q("5.603872 mm")))
sketch2.addConstraint(Sketcher.Constraint("DistanceX", 42, 1, 42, 2, Q("5.603872 mm")))
sketch2.addConstraint(Sketcher.Constraint("DistanceX", 52, 2, 52, 1, Q("5.603872 mm")))
sketch2.addConstraint(Sketcher.Constraint("DistanceY", 4, 2, 4, 1, Q("5.603872 mm")))
sketch2.addConstraint(Sketcher.Constraint("DistanceY", 26, 2, 26, 1, Q("5.603872 mm")))
sketch2.addConstraint(Sketcher.Constraint("DistanceY", 36, 1, 36, 2, Q("5.603872 mm")))
sketch2.addConstraint(Sketcher.Constraint("DistanceY", 58, 1, 58, 2, Q("5.603872 mm")))
sketch2.addConstraint(Sketcher.Constraint("Distance", 0, Q("5.603872 mm")))
sketch2.addConstraint(Sketcher.Constraint("Distance", 2, Q("5.603872 mm")))
sketch2.addConstraint(Sketcher.Constraint("Distance", 6, Q("5.603872 mm")))
sketch2.addConstraint(Sketcher.Constraint("Distance", 8, Q("5.603872 mm")))
sketch2.addConstraint(Sketcher.Constraint("Distance", 12, Q("5.603872 mm")))
sketch2.addConstraint(Sketcher.Constraint("Distance", 14, Q("5.603872 mm")))
sketch2.addConstraint(Sketcher.Constraint("Distance", 16, Q("5.603872 mm")))
sketch2.addConstraint(Sketcher.Constraint("Distance", 18, Q("5.603872 mm")))
sketch2.addConstraint(Sketcher.Constraint("Distance", 22, Q("5.603872 mm")))
sketch2.addConstraint(Sketcher.Constraint("Distance", 24, Q("5.603872 mm")))
sketch2.addConstraint(Sketcher.Constraint("Distance", 28, Q("5.603872 mm")))
sketch2.addConstraint(Sketcher.Constraint("Distance", 30, Q("5.603872 mm")))
sketch2.addConstraint(Sketcher.Constraint("Distance", 32, Q("5.603872 mm")))
sketch2.addConstraint(Sketcher.Constraint("Distance", 34, Q("5.603872 mm")))
sketch2.addConstraint(Sketcher.Constraint("Distance", 38, Q("5.603872 mm")))
sketch2.addConstraint(Sketcher.Constraint("Distance", 40, Q("5.603872 mm")))
sketch2.addConstraint(Sketcher.Constraint("Distance", 44, Q("5.603872 mm")))
sketch2.addConstraint(Sketcher.Constraint("Distance", 46, Q("5.603872 mm")))
sketch2.addConstraint(Sketcher.Constraint("Distance", 48, Q("5.603872 mm")))
sketch2.addConstraint(Sketcher.Constraint("Distance", 50, Q("5.603872 mm")))
sketch2.addConstraint(Sketcher.Constraint("Distance", 54, Q("5.603872 mm")))
sketch2.addConstraint(Sketcher.Constraint("Distance", 56, Q("5.603872 mm")))
sketch2.addConstraint(Sketcher.Constraint("Distance", 60, Q("5.603872 mm")))
sketch2.addConstraint(Sketcher.Constraint("Distance", 62, Q("5.603872 mm")))
sketch2.addConstraint(Sketcher.Constraint("DistanceX", 1, 2, -1, 1, Q("5.20175 mm")))
sketch2.addConstraint(Sketcher.Constraint("DistanceX", 5, 2, -1, 1, Q("12.34458 mm")))
sketch2.addConstraint(Sketcher.Constraint("DistanceY", -1, 1, 8, 2, Q("12.34458 mm")))
sketch2.addConstraint(Sketcher.Constraint("DistanceY", -1, 1, 12, 2, Q("5.20175 mm")))
sketch2.addConstraint(Sketcher.Constraint("DistanceY", 17, 2, -1, 1, Q("5.20175 mm")))
sketch2.addConstraint(Sketcher.Constraint("DistanceY", 21, 2, -1, 1, Q("12.34458 mm")))
sketch2.addConstraint(Sketcher.Constraint("DistanceX", 24, 2, -1, 1, Q("12.34458 mm")))
sketch2.addConstraint(Sketcher.Constraint("DistanceX", 28, 2, -1, 1, Q("5.20175 mm")))
sketch2.addConstraint(Sketcher.Constraint("DistanceX", -1, 1, 33, 2, Q("5.20175 mm")))
sketch2.addConstraint(Sketcher.Constraint("DistanceX", -1, 1, 37, 2, Q("12.34458 mm")))
sketch2.addConstraint(Sketcher.Constraint("DistanceY", 40, 2, -1, 1, Q("12.34458 mm")))
sketch2.addConstraint(Sketcher.Constraint("DistanceY", 44, 2, -1, 1, Q("5.20175 mm")))
sketch2.addConstraint(Sketcher.Constraint("DistanceY", -1, 1, 49, 2, Q("5.20175 mm")))
sketch2.addConstraint(Sketcher.Constraint("DistanceY", -1, 1, 53, 2, Q("12.34458 mm")))
sketch2.addConstraint(Sketcher.Constraint("DistanceX", -1, 1, 56, 2, Q("12.34458 mm")))
sketch2.addConstraint(Sketcher.Constraint("DistanceX", -1, 1, 60, 2, Q("5.20175 mm")))
pad2 = body.newObject("PartDesign::Pad", "Pad001")
pad2.Profile = sketch2
pad2.setExpression("Length", "Params.pad2_length")
doc.recompute()

datumplane = body.newObject("PartDesign::Plane", "DatumPlane")
datumplane.AttachmentSupport = (doc.getObject("XZ_Plane"), [""])
datumplane.MapMode = "FlatFace"
datumplane.AttachmentOffset = App.Placement(Vector(0, 0, -50), App.Rotation())
mirrored = body.newObject("PartDesign::Mirrored", "Mirrored")
mirrored.Originals = [pad2]
mirrored.MirrorPlane = (datumplane, [""])
body.Tip = mirrored

# Sketch on XZ plane
sketch3 = body.newObject("Sketcher::SketchObject", "Sketch002")
sketch3.AttachmentSupport = (doc.getObject("XZ_Plane"), [""])
sketch3.MapMode = "FlatFace"
sketch3.AttachmentOffset = App.Placement(Vector(0, 0, 10), App.Rotation())
sketch3.addGeometry(Part.Circle(Vector(0, 0, 0), Vector(0, 0, 1), 5), False)
sketch3.addConstraint(Sketcher.Constraint("Coincident", 0, 3, -1, 1))
sketch3.addConstraint(Sketcher.Constraint("Diameter", 0, Q("10 mm")))
sketch3.setExpression("Constraints[1]", "Params.sketch3_diameter")
pad3 = body.newObject("PartDesign::Pad", "Pad002")
pad3.Profile = sketch3
pad3.setExpression("Length", "Params.pad3_length")
doc.recompute()

datumplane2 = body.newObject("PartDesign::Plane", "DatumPlane001")
datumplane2.AttachmentSupport = (doc.getObject("XZ_Plane"), [""])
datumplane2.MapMode = "FlatFace"
datumplane2.AttachmentOffset = App.Placement(Vector(0, 0, -50), App.Rotation())
mirrored2 = body.newObject("PartDesign::Mirrored", "Mirrored001")
mirrored2.Originals = [pad3]
mirrored2.MirrorPlane = (datumplane2, [""])
body.Tip = mirrored2

# Sketch on XZ plane
sketch4 = body.newObject("Sketcher::SketchObject", "Sketch003")
sketch4.AttachmentSupport = (doc.getObject("XZ_Plane"), [""])
sketch4.MapMode = "FlatFace"
sketch4.AttachmentOffset = App.Placement(Vector(0, 0, 20), App.Rotation())
sketch4.addGeometry(Part.Circle(Vector(0, 0, 0), Vector(0, 0, 1), 5), False)
sketch4.addConstraint(Sketcher.Constraint("Coincident", 0, 3, -1, 1))
sketch4.addConstraint(Sketcher.Constraint("Diameter", 0, Q("10 mm")))
sketch4.setExpression("Constraints[1]", "Params.sketch4_diameter")

# Sketch on XY plane
sketch5 = body.newObject("Sketcher::SketchObject", "Sketch004")
sketch5.AttachmentSupport = (doc.getObject("XY_Plane"), [""])
sketch5.MapMode = "FlatFace"
sketch5.addGeometry(Part.LineSegment(Vector(0, -20, 0), Vector(0, -40, 0)), False)
sketch5.addGeometry(Part.LineSegment(Vector(0, -40, 0), Vector(70, -40, 0)), False)
sketch5.addGeometry(Part.LineSegment(Vector(70, -40, 0), Vector(70, -75, 0)), False)
sketch5.addConstraint(Sketcher.Constraint("Coincident", 0, 2, 1, 1))
sketch5.addConstraint(Sketcher.Constraint("Coincident", 1, 2, 2, 1))
sketch5.addConstraint(Sketcher.Constraint("Vertical", 0))
sketch5.addConstraint(Sketcher.Constraint("Horizontal", 1))
sketch5.addConstraint(Sketcher.Constraint("Vertical", 2))
sketch5.addConstraint(Sketcher.Constraint("PointOnObject", 0, 1, -2))
sketch5.addConstraint(Sketcher.Constraint("DistanceX", 1, 1, 1, 2, Q("70 mm")))
sketch5.addConstraint(Sketcher.Constraint("DistanceY", 0, 2, 0, 1, Q("20 mm")))
sketch5.addConstraint(Sketcher.Constraint("DistanceY", 2, 2, 2, 1, Q("35 mm")))
sketch5.addConstraint(Sketcher.Constraint("DistanceY", 0, 1, -1, 1, Q("20 mm")))
sketch5.setExpression("Constraints[6]", "Params.sketch5_width")
sketch5.setExpression("Constraints[7]", "Params.sketch5_height")
sketch5.setExpression("Constraints[8]", "Params.sketch5_height2")
doc.recompute()

additivepipe = body.newObject("PartDesign::AdditivePipe", "AdditivePipe")
additivepipe.Profile = sketch4
additivepipe.Spine = (sketch5, ["Edge1", "Edge2", "Edge3"])
additivepipe.Transition = "Right corner"

doc.recompute()
